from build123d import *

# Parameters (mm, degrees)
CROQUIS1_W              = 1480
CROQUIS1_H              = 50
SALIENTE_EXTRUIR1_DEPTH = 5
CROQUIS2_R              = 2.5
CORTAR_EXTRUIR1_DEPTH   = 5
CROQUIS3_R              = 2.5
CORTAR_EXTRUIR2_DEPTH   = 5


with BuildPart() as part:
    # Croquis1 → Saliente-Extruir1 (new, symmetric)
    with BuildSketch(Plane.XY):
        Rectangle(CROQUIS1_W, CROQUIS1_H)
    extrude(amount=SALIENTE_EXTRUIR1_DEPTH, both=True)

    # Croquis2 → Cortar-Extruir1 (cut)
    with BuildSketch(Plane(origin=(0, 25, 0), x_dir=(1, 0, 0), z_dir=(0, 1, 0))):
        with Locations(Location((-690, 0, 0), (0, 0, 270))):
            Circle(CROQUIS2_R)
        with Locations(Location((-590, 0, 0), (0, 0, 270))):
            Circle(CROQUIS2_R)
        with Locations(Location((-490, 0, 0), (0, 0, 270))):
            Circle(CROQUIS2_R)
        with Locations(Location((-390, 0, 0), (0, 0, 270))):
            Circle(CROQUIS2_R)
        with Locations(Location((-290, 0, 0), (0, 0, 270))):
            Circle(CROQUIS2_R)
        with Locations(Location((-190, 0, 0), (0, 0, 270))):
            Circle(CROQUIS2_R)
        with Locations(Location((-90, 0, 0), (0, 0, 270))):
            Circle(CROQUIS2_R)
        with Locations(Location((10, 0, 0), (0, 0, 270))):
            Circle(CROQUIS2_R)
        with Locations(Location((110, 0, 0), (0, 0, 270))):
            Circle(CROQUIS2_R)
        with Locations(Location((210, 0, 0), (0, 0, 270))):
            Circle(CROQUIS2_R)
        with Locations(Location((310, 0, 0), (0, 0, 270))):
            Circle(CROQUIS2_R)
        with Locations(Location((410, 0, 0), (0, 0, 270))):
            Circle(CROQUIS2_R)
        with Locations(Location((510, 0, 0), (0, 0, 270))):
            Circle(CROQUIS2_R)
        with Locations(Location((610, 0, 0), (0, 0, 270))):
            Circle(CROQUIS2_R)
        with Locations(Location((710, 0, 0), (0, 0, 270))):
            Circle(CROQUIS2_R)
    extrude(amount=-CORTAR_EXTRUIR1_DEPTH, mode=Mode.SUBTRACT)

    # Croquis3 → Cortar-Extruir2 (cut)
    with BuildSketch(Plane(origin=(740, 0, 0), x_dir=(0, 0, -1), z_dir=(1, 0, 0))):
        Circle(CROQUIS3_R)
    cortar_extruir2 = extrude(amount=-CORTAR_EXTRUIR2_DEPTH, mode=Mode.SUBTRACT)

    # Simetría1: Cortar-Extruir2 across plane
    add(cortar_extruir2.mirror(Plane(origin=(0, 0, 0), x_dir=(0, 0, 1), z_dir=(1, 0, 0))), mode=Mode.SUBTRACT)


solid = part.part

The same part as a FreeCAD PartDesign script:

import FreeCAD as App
import Part
import Sketcher
from FreeCAD import Vector


def add_polygon(sketch, points):
    """Adds a closed chain of lines whose ends are joined by coincident constraints."""
    first, n = sketch.GeometryCount, len(points)
    for a, b in zip(points, points[1:] + points[:1]):
        sketch.addGeometry(Part.LineSegment(App.Vector(*a, 0), App.Vector(*b, 0)), False)
    for i in range(n):
        sketch.addConstraint(Sketcher.Constraint("Coincident", first + i, 2, first + (i + 1) % n, 1))

doc = App.newDocument("Part")
params = doc.addObject("Spreadsheet::Sheet", "Params")
for row, (alias, value) in enumerate([
    ("sketch1_width", "1480 mm"),
    ("sketch1_height", "50 mm"),
    ("pad1_length", "10 mm"),
    ("sketch2_diameter", "5 mm"),
    ("pocket1_length", "5 mm"),
    ("sketch3_diameter", "5 mm"),
    ("pocket2_length", "5 mm"),
], start=1):
    params.set(f"A{row}", alias)
    params.set(f"B{row}", "=" + value)
    params.setAlias(f"B{row}", alias)

body = doc.addObject("PartDesign::Body", "Body")

# Sketch on XY plane
sketch1 = doc.addObject("Sketcher::SketchObject", "Sketch")
body.addObject(sketch1)
sketch1.AttachmentSupport = (doc.XY_Plane, [""])
sketch1.MapMode = "FlatFace"
add_polygon(sketch1, [(-740, 25), (-740, -25), (740, -25), (740, 25)])  # lines 0-3
sketch1.addConstraint([
    Sketcher.Constraint("Vertical", 0),
    Sketcher.Constraint("Horizontal", 1),
    Sketcher.Constraint("Vertical", 2),
    Sketcher.Constraint("Horizontal", 3),
    Sketcher.Constraint("Symmetric", 0, 2, 2, 2, -1, 1),
    Sketcher.Constraint("DistanceX", 1, 1, 1, 2, 1480.0),
    Sketcher.Constraint("DistanceY", 0, 2, 0, 1, 50.0),
])
sketch1.setExpression("Constraints[9]", "Params.sketch1_width")
sketch1.setExpression("Constraints[10]", "Params.sketch1_height")
pad1 = doc.addObject("PartDesign::Pad", "Pad")
body.addObject(pad1)
pad1.Profile = sketch1
pad1.setExpression("Length", "Params.pad1_length")
pad1.Midplane = True

# Sketch on XZ plane
sketch2 = doc.addObject("Sketcher::SketchObject", "Sketch001")
body.addObject(sketch2)
sketch2.AttachmentSupport = (doc.XZ_Plane, [""])
sketch2.MapMode = "FlatFace"
sketch2.AttachmentOffset = App.Placement(Vector(0, 0, -25), App.Rotation())
sketch2.addGeometry([
    Part.Circle(Vector(-690, 0, 0), Vector(0, 0, 1), 2.5),  # 0
    Part.Circle(Vector(-590, 0, 0), Vector(0, 0, 1), 2.5),  # 1
    Part.Circle(Vector(-490, 0, 0), Vector(0, 0, 1), 2.5),  # 2
    Part.Circle(Vector(-390, 0, 0), Vector(0, 0, 1), 2.5),  # 3
    Part.Circle(Vector(-290, 0, 0), Vector(0, 0, 1), 2.5),  # 4
    Part.Circle(Vector(-190, 0, 0), Vector(0, 0, 1), 2.5),  # 5
    Part.Circle(Vector(-90, 0, 0), Vector(0, 0, 1), 2.5),  # 6
    Part.Circle(Vector(10, 0, 0), Vector(0, 0, 1), 2.5),  # 7
    Part.Circle(Vector(110, 0, 0), Vector(0, 0, 1), 2.5),  # 8
    Part.Circle(Vector(210, 0, 0), Vector(0, 0, 1), 2.5),  # 9
    Part.Circle(Vector(310, 0, 0), Vector(0, 0, 1), 2.5),  # 10
    Part.Circle(Vector(410, 0, 0), Vector(0, 0, 1), 2.5),  # 11
    Part.Circle(Vector(510, 0, 0), Vector(0, 0, 1), 2.5),  # 12
    Part.Circle(Vector(610, 0, 0), Vector(0, 0, 1), 2.5),  # 13
    Part.Circle(Vector(710, 0, 0), Vector(0, 0, 1), 2.5),  # 14
], False)
sketch2.addConstraint([
    Sketcher.Constraint("Equal", 0, 1),
    Sketcher.Constraint("Equal", 1, 2),
    Sketcher.Constraint("Equal", 2, 3),
    Sketcher.Constraint("Equal", 3, 4),
    Sketcher.Constraint("Equal", 4, 5),
    Sketcher.Constraint("Equal", 5, 6),
    Sketcher.Constraint("Equal", 6, 7),
    Sketcher.Constraint("Equal", 7, 8),
    Sketcher.Constraint("Equal", 8, 9),
    Sketcher.Constraint("Equal", 9, 10),
    Sketcher.Constraint("Equal", 10, 11),
    Sketcher.Constraint("Equal", 11, 12),
    Sketcher.Constraint("Equal", 12, 13),
    Sketcher.Constraint("Equal", 13, 14),
    Sketcher.Constraint("PointOnObject", 0, 3, -1),
    Sketcher.Constraint("PointOnObject", 1, 3, -1),
    Sketcher.Constraint("PointOnObject", 2, 3, -1),
    Sketcher.Constraint("PointOnObject", 3, 3, -1),
    Sketcher.Constraint("PointOnObject", 4, 3, -1),
    Sketcher.Constraint("PointOnObject", 5, 3, -1),
    Sketcher.Constraint("PointOnObject", 6, 3, -1),
    Sketcher.Constraint("PointOnObject", 7, 3, -1),
    Sketcher.Constraint("PointOnObject", 8, 3, -1),
    Sketcher.Constraint("PointOnObject", 9, 3, -1),
    Sketcher.Constraint("PointOnObject", 10, 3, -1),
    Sketcher.Constraint("PointOnObject", 11, 3, -1),
    Sketcher.Constraint("PointOnObject", 12, 3, -1),
    Sketcher.Constraint("PointOnObject", 13, 3, -1),
    Sketcher.Constraint("PointOnObject", 14, 3, -1),
    Sketcher.Constraint("Diameter", 0, 5.0),
    Sketcher.Constraint("DistanceX", 0, 3, -1, 1, 690.0),
    Sketcher.Constraint("DistanceX", 1, 3, -1, 1, 590.0),
    Sketcher.Constraint("DistanceX", 2, 3, -1, 1, 490.0),
    Sketcher.Constraint("DistanceX", 3, 3, -1, 1, 390.0),
    Sketcher.Constraint("DistanceX", 4, 3, -1, 1, 290.0),
    Sketcher.Constraint("DistanceX", 5, 3, -1, 1, 190.0),
    Sketcher.Constraint("DistanceX", 6, 3, -1, 1, 90.0),
    Sketcher.Constraint("DistanceX", -1, 1, 7, 3, 10.0),
    Sketcher.Constraint("DistanceX", -1, 1, 8, 3, 110.0),
    Sketcher.Constraint("DistanceX", -1, 1, 9, 3, 210.0),
    Sketcher.Constraint("DistanceX", -1, 1, 10, 3, 310.0),
    Sketcher.Constraint("DistanceX", -1, 1, 11, 3, 410.0),
    Sketcher.Constraint("DistanceX", -1, 1, 12, 3, 510.0),
    Sketcher.Constraint("DistanceX", -1, 1, 13, 3, 610.0),
    Sketcher.Constraint("DistanceX", -1, 1, 14, 3, 710.0),
])
sketch2.setExpression("Constraints[29]", "Params.sketch2_diameter")
pocket1 = doc.addObject("PartDesign::Pocket", "Pocket")
body.addObject(pocket1)
pocket1.Profile = sketch2
pocket1.setExpression("Length", "Params.pocket1_length")
pocket1.Reversed = True

# Sketch on YZ plane
sketch3 = doc.addObject("Sketcher::SketchObject", "Sketch002")
body.addObject(sketch3)
sketch3.AttachmentSupport = (doc.YZ_Plane, [""])
sketch3.MapMode = "FlatFace"
sketch3.AttachmentOffset = App.Placement(Vector(0, 0, 740), App.Rotation())
sketch3.addGeometry(Part.Circle(Vector(0, 0, 0), Vector(0, 0, 1), 2.5), False)
sketch3.addConstraint([
    Sketcher.Constraint("Coincident", 0, 3, -1, 1),
    Sketcher.Constraint("Diameter", 0, 5.0),
])
sketch3.setExpression("Constraints[1]", "Params.sketch3_diameter")
pocket2 = doc.addObject("PartDesign::Pocket", "Pocket001")
body.addObject(pocket2)
pocket2.Profile = sketch3
pocket2.setExpression("Length", "Params.pocket2_length")
doc.recompute()

mirrored = doc.addObject("PartDesign::Mirrored", "Mirrored")
body.addObject(mirrored)
mirrored.Originals = [pocket2]
mirrored.MirrorPlane = (doc.YZ_Plane, [""])
body.Tip = mirrored

doc.recompute()
